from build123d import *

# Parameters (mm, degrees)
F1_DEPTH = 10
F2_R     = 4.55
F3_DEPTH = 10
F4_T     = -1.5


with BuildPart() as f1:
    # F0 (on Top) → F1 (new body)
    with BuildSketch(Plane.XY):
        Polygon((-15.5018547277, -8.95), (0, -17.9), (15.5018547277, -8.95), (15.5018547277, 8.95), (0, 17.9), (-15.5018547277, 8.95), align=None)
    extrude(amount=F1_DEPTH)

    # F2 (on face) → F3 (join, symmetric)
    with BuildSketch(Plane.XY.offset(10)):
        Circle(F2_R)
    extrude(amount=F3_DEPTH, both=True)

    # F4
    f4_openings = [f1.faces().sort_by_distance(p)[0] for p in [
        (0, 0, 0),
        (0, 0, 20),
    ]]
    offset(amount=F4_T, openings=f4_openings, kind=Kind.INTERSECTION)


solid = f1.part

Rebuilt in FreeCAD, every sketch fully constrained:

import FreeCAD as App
import Part
import Sketcher

V = App.Vector
Q = App.Units.Quantity


def faces_at(feature, points):
    """Names of the faces that lie closest to the given points."""
    faces = feature.Shape.Faces
    near = lambda p: min(range(len(faces)), key=lambda i: faces[i].distToShape(Part.Vertex(*p))[0])
    return sorted({f"Face{near(p) + 1}" for p in points})


def add_polygon(sketch, points):
    """Adds a closed chain of lines whose ends are joined by coincident constraints."""
    first, n = sketch.GeometryCount, len(points)
    for a, b in zip(points, points[1:] + points[:1]):
        sketch.addGeometry(Part.LineSegment(App.Vector(*a, 0), App.Vector(*b, 0)), False)
    for i in range(n):
        sketch.addConstraint(Sketcher.Constraint("Coincident", first + i, 2, first + (i + 1) % n, 1))

doc = App.newDocument("Part")
body = doc.addObject("PartDesign::Body", "Body")

sketch1 = body.newObject("Sketcher::SketchObject", "Sketch")
sketch1.AttachmentSupport = (doc.getObject("XY_Plane"), [""])
sketch1.MapMode = "FlatFace"
add_polygon(sketch1, [(-15.501855, -8.95), (0, -17.9), (15.501855, -8.95), (15.501855, 8.95), (0, 17.9), (-15.501855, 8.95)])
sketch1.addConstraint(Sketcher.Constraint("Vertical", 2))
sketch1.addConstraint(Sketcher.Constraint("Vertical", 5))
sketch1.addConstraint(Sketcher.Constraint("Symmetric", 0, 2, 3, 2, -1, 1))
sketch1.addConstraint(Sketcher.Constraint("Symmetric", 1, 2, 4, 2, -1, 1))
sketch1.addConstraint(Sketcher.Constraint("PointOnObject", 0, 2, -2))
sketch1.addConstraint(Sketcher.Constraint("Parallel", 0, 3))
sketch1.addConstraint(Sketcher.Constraint("Horizontal", 2, 2, 4, 2))
sketch1.addConstraint(Sketcher.Constraint("Angle", 0, Q("-30 deg")))
sketch1.addConstraint(Sketcher.Constraint("DistanceY", 2, 1, 2, 2, 17.9))
sketch1.addConstraint(Sketcher.Constraint("Distance", 0, 17.9))
pad1 = body.newObject("PartDesign::Pad", "Pad")
pad1.Profile = sketch1
pad1.Length = 10

sketch2 = body.newObject("Sketcher::SketchObject", "Sketch001")
sketch2.AttachmentSupport = (doc.getObject("XY_Plane"), [""])
sketch2.MapMode = "FlatFace"
sketch2.AttachmentOffset = App.Placement(V(0, 0, 10), App.Rotation())
sketch2.addGeometry(Part.Circle(V(0, 0, 0), V(0, 0, 1), 4.55), False)
sketch2.addConstraint(Sketcher.Constraint("Coincident", 0, 3, -1, 1))
sketch2.addConstraint(Sketcher.Constraint("Diameter", 0, 9.1))
pad2 = body.newObject("PartDesign::Pad", "Pad001")
pad2.Profile = sketch2
pad2.Length = 20
pad2.Midplane = True
doc.recompute()

thickness = body.newObject("PartDesign::Thickness", "Thickness")
thickness.Base = (pad2, faces_at(pad2, [(0, 0, 0), (0, 0, 20)]))
thickness.Value = 1.5
thickness.Reversed = True
thickness.Join = "Intersection"

doc.recompute()
